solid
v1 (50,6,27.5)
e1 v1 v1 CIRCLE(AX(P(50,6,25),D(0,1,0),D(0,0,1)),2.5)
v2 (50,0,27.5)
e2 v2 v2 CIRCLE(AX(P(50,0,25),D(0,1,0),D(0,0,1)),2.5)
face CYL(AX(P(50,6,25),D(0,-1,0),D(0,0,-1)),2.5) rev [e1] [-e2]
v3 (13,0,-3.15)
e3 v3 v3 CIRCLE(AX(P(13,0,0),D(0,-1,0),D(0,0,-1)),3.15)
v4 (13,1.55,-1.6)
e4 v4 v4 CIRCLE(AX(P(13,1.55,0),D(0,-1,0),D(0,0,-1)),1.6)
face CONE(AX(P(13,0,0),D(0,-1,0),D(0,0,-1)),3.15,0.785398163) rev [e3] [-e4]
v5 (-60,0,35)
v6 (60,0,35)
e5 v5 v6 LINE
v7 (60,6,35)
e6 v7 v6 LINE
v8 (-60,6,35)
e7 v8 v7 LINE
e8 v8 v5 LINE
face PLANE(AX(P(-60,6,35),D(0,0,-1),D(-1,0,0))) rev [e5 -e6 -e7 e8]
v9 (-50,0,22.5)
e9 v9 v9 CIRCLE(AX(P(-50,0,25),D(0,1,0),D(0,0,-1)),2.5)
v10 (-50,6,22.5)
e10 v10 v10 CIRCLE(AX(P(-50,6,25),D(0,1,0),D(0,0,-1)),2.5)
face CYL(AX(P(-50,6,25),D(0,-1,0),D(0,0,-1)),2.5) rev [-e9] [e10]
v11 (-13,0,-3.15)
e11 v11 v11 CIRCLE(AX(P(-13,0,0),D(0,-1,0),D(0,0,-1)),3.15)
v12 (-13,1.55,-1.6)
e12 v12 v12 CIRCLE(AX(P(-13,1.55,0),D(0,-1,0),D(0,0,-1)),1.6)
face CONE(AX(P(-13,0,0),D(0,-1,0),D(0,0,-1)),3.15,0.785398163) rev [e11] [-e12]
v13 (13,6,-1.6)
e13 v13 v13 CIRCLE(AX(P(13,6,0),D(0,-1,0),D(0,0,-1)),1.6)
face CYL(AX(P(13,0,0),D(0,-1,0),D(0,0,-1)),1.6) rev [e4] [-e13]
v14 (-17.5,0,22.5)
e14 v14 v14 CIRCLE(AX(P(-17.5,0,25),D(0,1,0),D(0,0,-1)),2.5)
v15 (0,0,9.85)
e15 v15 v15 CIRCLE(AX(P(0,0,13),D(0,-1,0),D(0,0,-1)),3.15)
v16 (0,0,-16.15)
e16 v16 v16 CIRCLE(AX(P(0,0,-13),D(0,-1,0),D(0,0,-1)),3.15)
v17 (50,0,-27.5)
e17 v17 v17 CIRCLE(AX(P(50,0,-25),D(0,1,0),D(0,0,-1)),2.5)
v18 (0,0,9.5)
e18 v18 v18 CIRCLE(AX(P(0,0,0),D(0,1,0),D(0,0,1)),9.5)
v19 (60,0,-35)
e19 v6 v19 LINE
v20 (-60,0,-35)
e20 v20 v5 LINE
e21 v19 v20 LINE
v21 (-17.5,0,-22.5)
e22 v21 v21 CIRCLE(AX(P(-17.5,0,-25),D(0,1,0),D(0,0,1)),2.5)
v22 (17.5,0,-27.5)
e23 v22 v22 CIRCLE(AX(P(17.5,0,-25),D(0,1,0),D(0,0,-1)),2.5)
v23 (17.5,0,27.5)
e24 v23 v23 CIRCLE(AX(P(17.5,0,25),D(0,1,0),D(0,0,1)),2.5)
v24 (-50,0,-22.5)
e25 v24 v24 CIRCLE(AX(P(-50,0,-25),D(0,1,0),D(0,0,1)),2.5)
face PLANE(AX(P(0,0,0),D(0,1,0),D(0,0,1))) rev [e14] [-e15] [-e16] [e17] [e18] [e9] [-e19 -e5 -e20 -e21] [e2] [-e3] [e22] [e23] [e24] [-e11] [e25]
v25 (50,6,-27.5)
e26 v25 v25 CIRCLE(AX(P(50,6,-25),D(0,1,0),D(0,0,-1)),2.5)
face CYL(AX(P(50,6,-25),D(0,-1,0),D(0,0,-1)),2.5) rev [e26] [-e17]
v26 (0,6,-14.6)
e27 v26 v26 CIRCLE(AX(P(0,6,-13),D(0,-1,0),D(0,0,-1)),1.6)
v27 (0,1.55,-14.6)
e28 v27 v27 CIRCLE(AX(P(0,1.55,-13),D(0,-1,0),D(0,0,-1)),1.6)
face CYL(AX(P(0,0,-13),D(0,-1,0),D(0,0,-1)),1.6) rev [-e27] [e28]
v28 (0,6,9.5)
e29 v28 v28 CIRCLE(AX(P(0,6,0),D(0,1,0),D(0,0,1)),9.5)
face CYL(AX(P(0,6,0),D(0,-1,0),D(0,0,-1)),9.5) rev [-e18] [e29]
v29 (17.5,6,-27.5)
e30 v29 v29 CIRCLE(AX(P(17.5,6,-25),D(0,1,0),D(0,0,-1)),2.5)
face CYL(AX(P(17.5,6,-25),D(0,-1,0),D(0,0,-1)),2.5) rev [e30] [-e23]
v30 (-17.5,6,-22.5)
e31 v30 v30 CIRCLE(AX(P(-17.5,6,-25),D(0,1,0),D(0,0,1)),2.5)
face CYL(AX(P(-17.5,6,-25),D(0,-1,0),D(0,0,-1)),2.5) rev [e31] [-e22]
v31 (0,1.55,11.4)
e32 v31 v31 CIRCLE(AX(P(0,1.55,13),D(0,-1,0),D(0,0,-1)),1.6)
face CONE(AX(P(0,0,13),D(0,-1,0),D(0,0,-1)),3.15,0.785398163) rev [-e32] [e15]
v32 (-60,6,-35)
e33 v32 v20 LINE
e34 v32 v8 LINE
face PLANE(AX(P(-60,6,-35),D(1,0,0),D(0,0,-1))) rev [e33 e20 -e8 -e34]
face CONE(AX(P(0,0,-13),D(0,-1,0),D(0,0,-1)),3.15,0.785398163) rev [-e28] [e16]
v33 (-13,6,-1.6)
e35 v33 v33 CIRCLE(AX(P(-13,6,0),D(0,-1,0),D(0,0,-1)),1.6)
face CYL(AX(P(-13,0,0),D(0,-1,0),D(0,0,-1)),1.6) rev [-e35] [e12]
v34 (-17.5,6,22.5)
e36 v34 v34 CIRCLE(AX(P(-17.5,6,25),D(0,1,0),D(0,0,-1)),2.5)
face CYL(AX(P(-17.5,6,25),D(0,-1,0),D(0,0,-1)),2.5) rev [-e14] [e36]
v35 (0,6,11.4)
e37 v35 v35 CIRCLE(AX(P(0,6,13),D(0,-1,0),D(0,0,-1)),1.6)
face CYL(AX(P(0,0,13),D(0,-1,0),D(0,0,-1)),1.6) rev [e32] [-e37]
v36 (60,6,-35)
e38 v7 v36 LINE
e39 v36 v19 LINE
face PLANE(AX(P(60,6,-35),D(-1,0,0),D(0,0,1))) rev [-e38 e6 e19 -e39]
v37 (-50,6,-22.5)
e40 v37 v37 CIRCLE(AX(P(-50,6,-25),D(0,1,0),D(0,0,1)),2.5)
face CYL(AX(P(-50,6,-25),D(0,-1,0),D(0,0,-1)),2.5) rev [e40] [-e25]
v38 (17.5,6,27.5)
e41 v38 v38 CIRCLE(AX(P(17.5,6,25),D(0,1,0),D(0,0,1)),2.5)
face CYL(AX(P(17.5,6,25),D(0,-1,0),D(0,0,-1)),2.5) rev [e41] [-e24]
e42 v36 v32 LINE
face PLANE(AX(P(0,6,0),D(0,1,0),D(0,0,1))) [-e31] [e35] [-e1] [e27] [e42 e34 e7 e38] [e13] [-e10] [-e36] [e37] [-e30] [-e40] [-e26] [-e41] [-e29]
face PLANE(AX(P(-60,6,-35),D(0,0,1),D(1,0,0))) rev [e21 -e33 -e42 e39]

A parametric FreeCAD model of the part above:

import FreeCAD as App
import Part
import Sketcher
from FreeCAD import Vector

doc = App.newDocument("Part")
body = doc.addObject("PartDesign::Body", "Body")

sketch1 = body.newObject("Sketcher::SketchObject", "Sketch")
sketch1.AttachmentSupport = (doc.getObject("XZ_Plane"), [""])
sketch1.MapMode = "FlatFace"
sketch1.addGeometry([
    Part.LineSegment(Vector(-60, -35, 0), Vector(-60, 35, 0)),
    Part.LineSegment(Vector(-60, 35, 0), Vector(60, 35, 0)),
    Part.LineSegment(Vector(60, 35, 0), Vector(60, -35, 0)),
    Part.LineSegment(Vector(60, -35, 0), Vector(-60, -35, 0)),
    Part.Circle(Vector(-50, 25, 0), Vector(0, 0, 1), 2.5),
    Part.Circle(Vector(-17.5, 25, 0), Vector(0, 0, 1), 2.5),
    Part.Circle(Vector(17.5, 25, 0), Vector(0, 0, 1), 2.5),
    Part.Circle(Vector(50, 25, 0), Vector(0, 0, 1), 2.5),
    Part.Circle(Vector(-50, -25, 0), Vector(0, 0, 1), 2.5),
    Part.Circle(Vector(-17.5, -25, 0), Vector(0, 0, 1), 2.5),
    Part.Circle(Vector(0, 0, 0), Vector(0, 0, 1), 9.5),
    Part.Circle(Vector(17.5, -25, 0), Vector(0, 0, 1), 2.5),
    Part.Circle(Vector(50, -25, 0), Vector(0, 0, 1), 2.5),
], False)
sketch1.addConstraint([
    Sketcher.Constraint("Coincident", 0, 2, 1, 1),
    Sketcher.Constraint("Coincident", 1, 2, 2, 1),
    Sketcher.Constraint("Coincident", 2, 2, 3, 1),
    Sketcher.Constraint("Coincident", 3, 2, 0, 1),
    Sketcher.Constraint("Vertical", 0),
    Sketcher.Constraint("Horizontal", 1),
    Sketcher.Constraint("Vertical", 2),
    Sketcher.Constraint("Horizontal", 3),
    Sketcher.Constraint("Coincident", 10, 3, -1, 1),
    Sketcher.Constraint("Equal", 4, 5),
    Sketcher.Constraint("Equal", 5, 6),
    Sketcher.Constraint("Equal", 6, 7),
    Sketcher.Constraint("Equal", 7, 8),
    Sketcher.Constraint("Equal", 8, 9),
    Sketcher.Constraint("Equal", 9, 11),
    Sketcher.Constraint("Equal", 11, 12),
    Sketcher.Constraint("Symmetric", 7, 3, 8, 3, -1, 1),
    Sketcher.Constraint("Symmetric", 6, 3, 9, 3, -1, 1),
    Sketcher.Constraint("Symmetric", 5, 3, 11, 3, -1, 1),
    Sketcher.Constraint("Symmetric", 4, 3, 12, 3, -1, 1),
    Sketcher.Constraint("Symmetric", 0, 2, 2, 2, -1, 1),
    Sketcher.Constraint("Symmetric", 5, 3, 6, 3, -2),
    Sketcher.Constraint("Symmetric", 4, 3, 7, 3, -2),
    Sketcher.Constraint("Horizontal", 4, 3, 5, 3),
    Sketcher.Constraint("Diameter", 4, 5.0),
    Sketcher.Constraint("Diameter", 10, 19.0),
    Sketcher.Constraint("DistanceX", 1, 1, 1, 2, 120.0),
    Sketcher.Constraint("DistanceY", 0, 1, 0, 2, 70.0),
    Sketcher.Constraint("DistanceX", 4, 3, -1, 1, 50.0),
    Sketcher.Constraint("DistanceY", -1, 1, 4, 3, 25.0),
    Sketcher.Constraint("DistanceX", 5, 3, 6, 3, 35.0),
])
pad1 = body.newObject("PartDesign::Pad", "Pad")
pad1.Profile = sketch1
pad1.Length = 6
pad1.Reversed = True

sketch2 = body.newObject("Sketcher::SketchObject", "Sketch001")
sketch2.AttachmentSupport = (doc.getObject("XZ_Plane"), [""])
sketch2.MapMode = "FlatFace"
sketch2.addGeometry([
    Part.Circle(Vector(13, 0, 0), Vector(0, 0, 1), 1.6),
    Part.Circle(Vector(0, 13, 0), Vector(0, 0, 1), 1.6),
    Part.Circle(Vector(-13, 0, 0), Vector(0, 0, 1), 1.6),
    Part.Circle(Vector(0, -13, 0), Vector(0, 0, 1), 1.6),
], False)
sketch2.addConstraint([
    Sketcher.Constraint("Equal", 0, 1),
    Sketcher.Constraint("Equal", 1, 2),
    Sketcher.Constraint("Equal", 2, 3),
    Sketcher.Constraint("Symmetric", 0, 3, 2, 3, -1, 1),
    Sketcher.Constraint("Symmetric", 1, 3, 3, 3, -1, 1),
    Sketcher.Constraint("PointOnObject", 0, 3, -1),
    Sketcher.Constraint("PointOnObject", 1, 3, -2),
    Sketcher.Constraint("Diameter", 0, 3.2),
    Sketcher.Constraint("DistanceX", -1, 1, 0, 3, 13.0),
    Sketcher.Constraint("DistanceY", -1, 1, 1, 3, 13.0),
])
doc.recompute()
hole = body.newObject("PartDesign::Hole", "Hole")
hole.Profile = sketch2
hole.ThreadType = "None"
hole.Diameter = 3.2
hole.DepthType = "ThroughAll"
hole.HoleCutType = "Countersink"
hole.HoleCutDiameter = 6.3
hole.HoleCutCountersinkAngle = 90

doc.recompute()
